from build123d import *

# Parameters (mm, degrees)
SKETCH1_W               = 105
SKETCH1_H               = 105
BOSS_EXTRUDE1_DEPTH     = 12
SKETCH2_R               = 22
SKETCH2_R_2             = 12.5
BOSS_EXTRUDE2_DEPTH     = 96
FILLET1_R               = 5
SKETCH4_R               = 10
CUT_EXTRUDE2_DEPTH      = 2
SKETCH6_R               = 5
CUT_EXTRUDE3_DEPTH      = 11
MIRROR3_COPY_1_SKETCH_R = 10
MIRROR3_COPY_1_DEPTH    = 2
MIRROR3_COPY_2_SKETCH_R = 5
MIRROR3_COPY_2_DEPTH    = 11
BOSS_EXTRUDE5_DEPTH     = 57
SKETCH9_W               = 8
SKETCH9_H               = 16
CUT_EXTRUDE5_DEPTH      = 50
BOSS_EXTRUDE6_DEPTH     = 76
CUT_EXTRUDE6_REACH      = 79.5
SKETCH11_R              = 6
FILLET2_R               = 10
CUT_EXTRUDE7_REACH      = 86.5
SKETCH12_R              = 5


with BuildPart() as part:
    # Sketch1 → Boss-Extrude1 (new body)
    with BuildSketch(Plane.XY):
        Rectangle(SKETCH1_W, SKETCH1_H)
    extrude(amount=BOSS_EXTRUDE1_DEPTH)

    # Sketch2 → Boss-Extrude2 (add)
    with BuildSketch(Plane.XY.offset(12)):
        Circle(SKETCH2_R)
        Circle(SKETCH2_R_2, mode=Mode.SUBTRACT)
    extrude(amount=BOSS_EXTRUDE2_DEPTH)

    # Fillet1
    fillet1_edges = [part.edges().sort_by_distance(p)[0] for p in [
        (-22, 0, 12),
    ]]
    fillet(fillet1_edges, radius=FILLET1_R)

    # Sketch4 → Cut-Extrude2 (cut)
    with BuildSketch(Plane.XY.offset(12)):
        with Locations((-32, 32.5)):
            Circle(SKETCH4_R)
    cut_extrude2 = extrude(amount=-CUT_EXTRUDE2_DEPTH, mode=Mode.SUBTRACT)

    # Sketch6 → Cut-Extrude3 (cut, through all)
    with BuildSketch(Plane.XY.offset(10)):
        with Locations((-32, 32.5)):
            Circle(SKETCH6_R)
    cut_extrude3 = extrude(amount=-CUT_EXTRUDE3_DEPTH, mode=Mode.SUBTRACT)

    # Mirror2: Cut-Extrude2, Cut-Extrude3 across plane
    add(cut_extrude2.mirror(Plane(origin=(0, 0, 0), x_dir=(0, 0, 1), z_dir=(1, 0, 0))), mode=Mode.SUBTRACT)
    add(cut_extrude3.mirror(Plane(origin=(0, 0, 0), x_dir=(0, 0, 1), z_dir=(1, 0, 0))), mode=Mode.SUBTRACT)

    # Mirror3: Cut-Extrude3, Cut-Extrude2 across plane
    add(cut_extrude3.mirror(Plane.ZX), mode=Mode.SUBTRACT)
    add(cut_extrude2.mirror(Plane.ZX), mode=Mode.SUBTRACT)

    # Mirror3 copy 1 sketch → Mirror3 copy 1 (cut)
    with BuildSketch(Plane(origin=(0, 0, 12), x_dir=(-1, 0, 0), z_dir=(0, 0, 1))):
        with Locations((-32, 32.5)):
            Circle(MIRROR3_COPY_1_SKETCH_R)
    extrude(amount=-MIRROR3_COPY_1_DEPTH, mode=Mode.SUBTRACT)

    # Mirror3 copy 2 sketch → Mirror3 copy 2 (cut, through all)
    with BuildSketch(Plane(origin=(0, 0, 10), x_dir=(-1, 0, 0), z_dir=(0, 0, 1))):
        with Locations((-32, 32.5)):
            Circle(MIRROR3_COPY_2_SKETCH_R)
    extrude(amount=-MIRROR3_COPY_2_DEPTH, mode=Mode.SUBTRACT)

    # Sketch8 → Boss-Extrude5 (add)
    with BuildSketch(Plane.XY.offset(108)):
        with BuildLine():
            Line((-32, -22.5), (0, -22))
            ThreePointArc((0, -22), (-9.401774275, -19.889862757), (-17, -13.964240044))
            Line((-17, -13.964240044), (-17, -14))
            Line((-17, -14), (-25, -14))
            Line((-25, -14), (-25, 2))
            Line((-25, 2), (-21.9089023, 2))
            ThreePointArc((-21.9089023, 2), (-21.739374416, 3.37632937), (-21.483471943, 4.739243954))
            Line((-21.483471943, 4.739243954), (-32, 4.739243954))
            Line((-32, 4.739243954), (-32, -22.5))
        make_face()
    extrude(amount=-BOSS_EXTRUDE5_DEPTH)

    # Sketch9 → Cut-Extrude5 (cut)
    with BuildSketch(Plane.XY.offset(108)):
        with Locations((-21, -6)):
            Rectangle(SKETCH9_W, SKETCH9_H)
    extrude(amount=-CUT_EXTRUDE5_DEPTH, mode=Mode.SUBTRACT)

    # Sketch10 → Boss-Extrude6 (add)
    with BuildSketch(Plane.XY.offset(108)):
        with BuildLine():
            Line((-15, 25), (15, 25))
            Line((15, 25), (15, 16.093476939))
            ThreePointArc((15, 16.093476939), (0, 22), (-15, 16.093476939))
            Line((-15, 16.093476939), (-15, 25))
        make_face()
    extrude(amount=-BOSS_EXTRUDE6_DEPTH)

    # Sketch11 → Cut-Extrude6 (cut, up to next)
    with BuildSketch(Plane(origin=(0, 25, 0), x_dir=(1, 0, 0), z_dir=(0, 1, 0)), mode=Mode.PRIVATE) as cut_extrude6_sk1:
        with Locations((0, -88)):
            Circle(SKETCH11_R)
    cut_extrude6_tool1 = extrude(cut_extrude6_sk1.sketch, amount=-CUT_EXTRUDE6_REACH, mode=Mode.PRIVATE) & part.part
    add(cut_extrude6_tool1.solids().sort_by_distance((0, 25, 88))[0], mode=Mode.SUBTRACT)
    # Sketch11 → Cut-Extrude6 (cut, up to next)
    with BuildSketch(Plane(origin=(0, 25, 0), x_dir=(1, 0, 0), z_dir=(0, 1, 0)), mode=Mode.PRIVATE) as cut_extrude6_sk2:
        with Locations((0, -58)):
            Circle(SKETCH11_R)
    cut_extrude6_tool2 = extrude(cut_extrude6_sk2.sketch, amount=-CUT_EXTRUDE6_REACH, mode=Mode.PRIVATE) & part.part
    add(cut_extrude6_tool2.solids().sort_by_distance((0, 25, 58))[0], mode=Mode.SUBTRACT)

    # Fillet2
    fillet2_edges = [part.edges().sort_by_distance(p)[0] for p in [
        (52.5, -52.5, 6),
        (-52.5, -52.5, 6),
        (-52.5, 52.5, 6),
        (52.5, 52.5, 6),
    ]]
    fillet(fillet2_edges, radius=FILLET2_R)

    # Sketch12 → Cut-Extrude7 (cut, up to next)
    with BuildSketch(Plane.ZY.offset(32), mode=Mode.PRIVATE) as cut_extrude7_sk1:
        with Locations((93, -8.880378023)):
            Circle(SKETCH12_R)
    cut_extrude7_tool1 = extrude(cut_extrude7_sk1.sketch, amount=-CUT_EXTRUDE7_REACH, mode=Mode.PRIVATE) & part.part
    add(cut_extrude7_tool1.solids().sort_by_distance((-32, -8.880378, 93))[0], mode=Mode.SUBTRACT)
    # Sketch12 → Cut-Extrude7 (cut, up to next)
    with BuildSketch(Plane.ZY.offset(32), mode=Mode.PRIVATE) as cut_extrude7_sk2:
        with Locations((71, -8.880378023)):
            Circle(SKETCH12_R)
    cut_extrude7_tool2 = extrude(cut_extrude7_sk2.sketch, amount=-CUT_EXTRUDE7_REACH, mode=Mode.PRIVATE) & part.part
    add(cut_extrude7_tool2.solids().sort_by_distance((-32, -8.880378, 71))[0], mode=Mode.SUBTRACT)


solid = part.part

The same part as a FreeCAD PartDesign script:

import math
import FreeCAD as App
import Part
import Sketcher
from FreeCAD import Vector
Q = App.Units.Quantity


def edges_at(feature, points):
    """Names of the edges that pass closest to the given points."""
    edges = feature.Shape.Edges
    near = lambda p: min(range(len(edges)), key=lambda i: edges[i].distToShape(Part.Vertex(*p))[0])
    return sorted({f"Edge{near(p) + 1}" for p in points})

doc = App.newDocument("Part")
body = doc.addObject("PartDesign::Body", "Body")

# Sketch on XY plane
sketch1 = doc.addObject("Sketcher::SketchObject", "Sketch")
body.addObject(sketch1)
sketch1.AttachmentSupport = (doc.XY_Plane, [""])
sketch1.MapMode = "FlatFace"
sketch1.addGeometry(Part.LineSegment(Vector(-52, 52, 0), Vector(-52, -52, 0)), False)
sketch1.addGeometry(Part.LineSegment(Vector(-52, -52, 0), Vector(52, -52, 0)), False)
sketch1.addGeometry(Part.LineSegment(Vector(52, -52, 0), Vector(52, 52, 0)), False)
sketch1.addGeometry(Part.LineSegment(Vector(52, 52, 0), Vector(-52, 52, 0)), False)
sketch1.addConstraint(Sketcher.Constraint("Coincident", 0, 2, 1, 1))
sketch1.addConstraint(Sketcher.Constraint("Coincident", 1, 2, 2, 1))
sketch1.addConstraint(Sketcher.Constraint("Coincident", 2, 2, 3, 1))
sketch1.addConstraint(Sketcher.Constraint("Coincident", 3, 2, 0, 1))
sketch1.addConstraint(Sketcher.Constraint("Vertical", 0))
sketch1.addConstraint(Sketcher.Constraint("Horizontal", 1))
sketch1.addConstraint(Sketcher.Constraint("Vertical", 2))
sketch1.addConstraint(Sketcher.Constraint("Horizontal", 3))
sketch1.addConstraint(Sketcher.Constraint("Symmetric", 0, 2, 2, 2, -1, 1))
sketch1.addConstraint(Sketcher.Constraint("Equal", 3, 0))
sketch1.addConstraint(Sketcher.Constraint("DistanceX", 1, 1, 1, 2, Q("105 mm")))
pad1 = doc.addObject("PartDesign::Pad", "Pad")
body.addObject(pad1)
pad1.Profile = sketch1
pad1.Length = 12

# Sketch on XY plane
sketch2 = doc.addObject("Sketcher::SketchObject", "Sketch001")
body.addObject(sketch2)
sketch2.AttachmentSupport = (doc.XY_Plane, [""])
sketch2.MapMode = "FlatFace"
sketch2.AttachmentOffset = App.Placement(Vector(0, 0, 12), App.Rotation())
sketch2.addGeometry(Part.Circle(Vector(0, 0, 0), Vector(0, 0, 1), 22), False)
sketch2.addGeometry(Part.Circle(Vector(0, 0, 0), Vector(0, 0, 1), 12), False)
sketch2.addConstraint(Sketcher.Constraint("Coincident", 0, 3, -1, 1))
sketch2.addConstraint(Sketcher.Constraint("Coincident", 1, 3, -1, 1))
sketch2.addConstraint(Sketcher.Constraint("Diameter", 0, Q("44 mm")))
sketch2.addConstraint(Sketcher.Constraint("Diameter", 1, Q("25 mm")))
pad2 = doc.addObject("PartDesign::Pad", "Pad001")
body.addObject(pad2)
pad2.Profile = sketch2
pad2.Length = 96
doc.recompute()

fillet = doc.addObject("PartDesign::Fillet", "Fillet")
body.addObject(fillet)
fillet.Base = (pad2, edges_at(pad2, [(-22, 0, 12)]))
fillet.Radius = 5

# Sketch on XY plane
sketch3 = doc.addObject("Sketcher::SketchObject", "Sketch002")
body.addObject(sketch3)
sketch3.AttachmentSupport = (doc.XY_Plane, [""])
sketch3.MapMode = "FlatFace"
sketch3.AttachmentOffset = App.Placement(Vector(0, 0, 12), App.Rotation())
sketch3.addGeometry(Part.Circle(Vector(-32, 32, 0), Vector(0, 0, 1), 10), False)
sketch3.addConstraint(Sketcher.Constraint("Diameter", 0, Q("20 mm")))
sketch3.addConstraint(Sketcher.Constraint("DistanceX", 0, 3, -1, 1, Q("32 mm")))
sketch3.addConstraint(Sketcher.Constraint("DistanceY", -1, 1, 0, 3, Q("32.5 mm")))
pocket1 = doc.addObject("PartDesign::Pocket", "Pocket")
body.addObject(pocket1)
pocket1.Profile = sketch3
pocket1.Length = 2

# Sketch on XY plane
sketch4 = doc.addObject("Sketcher::SketchObject", "Sketch003")
body.addObject(sketch4)
sketch4.AttachmentSupport = (doc.XY_Plane, [""])
sketch4.MapMode = "FlatFace"
sketch4.AttachmentOffset = App.Placement(Vector(0, 0, 10), App.Rotation())
sketch4.addGeometry(Part.Circle(Vector(-32, 32, 0), Vector(0, 0, 1), 5), False)
sketch4.addConstraint(Sketcher.Constraint("Diameter", 0, Q("10 mm")))
sketch4.addConstraint(Sketcher.Constraint("DistanceX", 0, 3, -1, 1, Q("32 mm")))
sketch4.addConstraint(Sketcher.Constraint("DistanceY", -1, 1, 0, 3, Q("32.5 mm")))
pocket2 = doc.addObject("PartDesign::Pocket", "Pocket001")
body.addObject(pocket2)
pocket2.Profile = sketch4
pocket2.Type = "ThroughAll"
doc.recompute()

mirrored = doc.addObject("PartDesign::Mirrored", "Mirrored")
body.addObject(mirrored)
mirrored.Originals = [pocket1, pocket2]
mirrored.MirrorPlane = (doc.YZ_Plane, [""])
body.Tip = mirrored
doc.recompute()

mirrored2 = doc.addObject("PartDesign::Mirrored", "Mirrored001")
body.addObject(mirrored2)
mirrored2.Originals = [pocket2, pocket1]
mirrored2.MirrorPlane = (doc.XZ_Plane, [""])
body.Tip = mirrored2

# Sketch on XY plane
sketch5 = doc.addObject("Sketcher::SketchObject", "Sketch004")
body.addObject(sketch5)
sketch5.AttachmentSupport = (doc.XY_Plane, [""])
sketch5.MapMode = "FlatFace"
sketch5.AttachmentOffset = App.Placement(Vector(0, 0, 12), App.Rotation())
sketch5.addGeometry(Part.Circle(Vector(32, -32, 0), Vector(0, 0, 1), 10), False)
sketch5.addConstraint(Sketcher.Constraint("Diameter", 0, Q("20 mm")))
sketch5.addConstraint(Sketcher.Constraint("DistanceX", -1, 1, 0, 3, Q("32 mm")))
sketch5.addConstraint(Sketcher.Constraint("DistanceY", 0, 3, -1, 1, Q("32.5 mm")))
pocket3 = doc.addObject("PartDesign::Pocket", "Pocket002")
body.addObject(pocket3)
pocket3.Profile = sketch5
pocket3.Length = 2

# Sketch on XY plane
sketch6 = doc.addObject("Sketcher::SketchObject", "Sketch005")
body.addObject(sketch6)
sketch6.AttachmentSupport = (doc.XY_Plane, [""])
sketch6.MapMode = "FlatFace"
sketch6.AttachmentOffset = App.Placement(Vector(0, 0, 10), App.Rotation())
sketch6.addGeometry(Part.Circle(Vector(32, -32, 0), Vector(0, 0, 1), 5), False)
sketch6.addConstraint(Sketcher.Constraint("Diameter", 0, Q("10 mm")))
sketch6.addConstraint(Sketcher.Constraint("DistanceX", -1, 1, 0, 3, Q("32 mm")))
sketch6.addConstraint(Sketcher.Constraint("DistanceY", 0, 3, -1, 1, Q("32.5 mm")))
pocket4 = doc.addObject("PartDesign::Pocket", "Pocket003")
body.addObject(pocket4)
pocket4.Profile = sketch6
pocket4.Type = "ThroughAll"

# Sketch on XY plane
sketch7 = doc.addObject("Sketcher::SketchObject", "Sketch006")
body.addObject(sketch7)
sketch7.AttachmentSupport = (doc.XY_Plane, [""])
sketch7.MapMode = "FlatFace"
sketch7.AttachmentOffset = App.Placement(Vector(0, 0, 108), App.Rotation())
sketch7.addGeometry(Part.LineSegment(Vector(-32, -22.5, 0), Vector(0, -22, 0)), False)
sketch7.addGeometry(Part.ArcOfCircle(Part.Circle(Vector(0, 0, 0), Vector(0, 0, 1), 22), math.radians(-141), math.radians(-90)), False)
sketch7.addGeometry(Part.LineSegment(Vector(-17, -13.964, 0), Vector(-17, -14, 0)), False)
sketch7.addGeometry(Part.LineSegment(Vector(-17, -14, 0), Vector(-25, -14, 0)), False)
sketch7.addGeometry(Part.LineSegment(Vector(-25, -14, 0), Vector(-25, 2, 0)), False)
sketch7.addGeometry(Part.LineSegment(Vector(-25, 2, 0), Vector(-21.909, 2, 0)), False)
sketch7.addGeometry(Part.ArcOfCircle(Part.Circle(Vector(0, 0, 0), Vector(0, 0, 1), 22), math.radians(167.56), math.radians(174.78)), False)
sketch7.addGeometry(Part.LineSegment(Vector(-21.483, 4.739, 0), Vector(-32, 4.739, 0)), False)
sketch7.addGeometry(Part.LineSegment(Vector(-32, 4.739, 0), Vector(-32, -22.5, 0)), False)
sketch7.addConstraint(Sketcher.Constraint("Coincident", 0, 2, 1, 2))
sketch7.addConstraint(Sketcher.Constraint("Coincident", 1, 1, 2, 1))
sketch7.addConstraint(Sketcher.Constraint("Coincident", 2, 2, 3, 1))
sketch7.addConstraint(Sketcher.Constraint("Coincident", 3, 2, 4, 1))
sketch7.addConstraint(Sketcher.Constraint("Coincident", 4, 2, 5, 1))
sketch7.addConstraint(Sketcher.Constraint("Coincident", 5, 2, 6, 2))
sketch7.addConstraint(Sketcher.Constraint("Coincident", 6, 1, 7, 1))
sketch7.addConstraint(Sketcher.Constraint("Coincident", 7, 2, 8, 1))
sketch7.addConstraint(Sketcher.Constraint("Coincident", 8, 2, 0, 1))
sketch7.addConstraint(Sketcher.Constraint("Vertical", 2))
sketch7.addConstraint(Sketcher.Constraint("Horizontal", 3))
sketch7.addConstraint(Sketcher.Constraint("Vertical", 4))
sketch7.addConstraint(Sketcher.Constraint("Horizontal", 5))
sketch7.addConstraint(Sketcher.Constraint("Horizontal", 7))
sketch7.addConstraint(Sketcher.Constraint("Vertical", 8))
sketch7.addConstraint(Sketcher.Constraint("Coincident", 1, 3, -1, 1))
sketch7.addConstraint(Sketcher.Constraint("Coincident", 6, 3, -1, 1))
sketch7.addConstraint(Sketcher.Constraint("Equal", 1, 6))
sketch7.addConstraint(Sketcher.Constraint("PointOnObject", 0, 2, -2))
sketch7.addConstraint(Sketcher.Constraint("Radius", 1, Q("22 mm")))
sketch7.addConstraint(Sketcher.Constraint("DistanceX", 3, 2, 3, 1, Q("8 mm")))
sketch7.addConstraint(Sketcher.Constraint("DistanceY", 4, 1, 4, 2, Q("16 mm")))
sketch7.addConstraint(Sketcher.Constraint("DistanceX", 1, 1, -1, 1, Q("17 mm")))
sketch7.addConstraint(Sketcher.Constraint("DistanceY", 2, 2, -1, 1, Q("14 mm")))
sketch7.addConstraint(Sketcher.Constraint("DistanceX", 7, 2, -1, 1, Q("32 mm")))
sketch7.addConstraint(Sketcher.Constraint("DistanceY", 8, 2, -1, 1, Q("22.5 mm")))
sketch7.addConstraint(Sketcher.Constraint("DistanceX", 7, 2, 7, 1, Q("10.516528 mm")))
pad3 = doc.addObject("PartDesign::Pad", "Pad002")
body.addObject(pad3)
pad3.Profile = sketch7
pad3.Length = 57
pad3.Reversed = True

# Sketch on XY plane
sketch8 = doc.addObject("Sketcher::SketchObject", "Sketch007")
body.addObject(sketch8)
sketch8.AttachmentSupport = (doc.XY_Plane, [""])
sketch8.MapMode = "FlatFace"
sketch8.AttachmentOffset = App.Placement(Vector(0, 0, 108), App.Rotation())
sketch8.addGeometry(Part.LineSegment(Vector(-25, 2, 0), Vector(-25, -14, 0)), False)
sketch8.addGeometry(Part.LineSegment(Vector(-25, -14, 0), Vector(-17, -14, 0)), False)
sketch8.addGeometry(Part.LineSegment(Vector(-17, -14, 0), Vector(-17, 2, 0)), False)
sketch8.addGeometry(Part.LineSegment(Vector(-17, 2, 0), Vector(-25, 2, 0)), False)
sketch8.addConstraint(Sketcher.Constraint("Coincident", 0, 2, 1, 1))
sketch8.addConstraint(Sketcher.Constraint("Coincident", 1, 2, 2, 1))
sketch8.addConstraint(Sketcher.Constraint("Coincident", 2, 2, 3, 1))
sketch8.addConstraint(Sketcher.Constraint("Coincident", 3, 2, 0, 1))
sketch8.addConstraint(Sketcher.Constraint("Vertical", 0))
sketch8.addConstraint(Sketcher.Constraint("Horizontal", 1))
sketch8.addConstraint(Sketcher.Constraint("Vertical", 2))
sketch8.addConstraint(Sketcher.Constraint("Horizontal", 3))
sketch8.addConstraint(Sketcher.Constraint("DistanceX", 1, 1, 1, 2, Q("8 mm")))
sketch8.addConstraint(Sketcher.Constraint("DistanceY", 0, 2, 0, 1, Q("16 mm")))
sketch8.addConstraint(Sketcher.Constraint("DistanceX", 0, 2, -1, 1, Q("25 mm")))
sketch8.addConstraint(Sketcher.Constraint("DistanceY", 0, 2, -1, 1, Q("14 mm")))
pocket5 = doc.addObject("PartDesign::Pocket", "Pocket004")
body.addObject(pocket5)
pocket5.Profile = sketch8
pocket5.Length = 50

# Sketch on XY plane
sketch9 = doc.addObject("Sketcher::SketchObject", "Sketch008")
body.addObject(sketch9)
sketch9.AttachmentSupport = (doc.XY_Plane, [""])
sketch9.MapMode = "FlatFace"
sketch9.AttachmentOffset = App.Placement(Vector(0, 0, 108), App.Rotation())
sketch9.addGeometry(Part.LineSegment(Vector(15, 25, 0), Vector(-15, 25, 0)), False)
sketch9.addGeometry(Part.LineSegment(Vector(-15, 25, 0), Vector(-15, 16, 0)), False)
sketch9.addGeometry(Part.ArcOfCircle(Part.Circle(Vector(0, 0, 0), Vector(0, 0, 1), 22), math.radians(47), math.radians(133)), False)
sketch9.addGeometry(Part.LineSegment(Vector(15, 16, 0), Vector(15, 25, 0)), False)
sketch9.addConstraint(Sketcher.Constraint("Coincident", 0, 2, 1, 1))
sketch9.addConstraint(Sketcher.Constraint("Coincident", 1, 2, 2, 2))
sketch9.addConstraint(Sketcher.Constraint("Coincident", 2, 1, 3, 1))
sketch9.addConstraint(Sketcher.Constraint("Coincident", 3, 2, 0, 1))
sketch9.addConstraint(Sketcher.Constraint("Horizontal", 0))
sketch9.addConstraint(Sketcher.Constraint("Vertical", 1))
sketch9.addConstraint(Sketcher.Constraint("Vertical", 3))
sketch9.addConstraint(Sketcher.Constraint("Coincident", 2, 3, -1, 1))
sketch9.addConstraint(Sketcher.Constraint("Horizontal", 1, 2, 2, 1))
sketch9.addConstraint(Sketcher.Constraint("Radius", 2, Q("22 mm")))
sketch9.addConstraint(Sketcher.Constraint("DistanceX", 0, 2, 0, 1, Q("30 mm")))
sketch9.addConstraint(Sketcher.Constraint("DistanceY", -1, 1, 0, 2, Q("25 mm")))
pad4 = doc.addObject("PartDesign::Pad", "Pad003")
body.addObject(pad4)
pad4.Profile = sketch9
pad4.Length = 76
pad4.Reversed = True

# Sketch on XZ plane
sketch10 = doc.addObject("Sketcher::SketchObject", "Sketch009")
body.addObject(sketch10)
sketch10.AttachmentSupport = (doc.XZ_Plane, [""])
sketch10.MapMode = "FlatFace"
sketch10.AttachmentOffset = App.Placement(Vector(0, 0, -25), App.Rotation())
sketch10.addGeometry(Part.Circle(Vector(0, 88, 0), Vector(0, 0, 1), 6), False)
sketch10.addConstraint(Sketcher.Constraint("PointOnObject", 0, 3, -2))
sketch10.addConstraint(Sketcher.Constraint("Diameter", 0, Q("12 mm")))
sketch10.addConstraint(Sketcher.Constraint("DistanceY", -1, 1, 0, 3, Q("88 mm")))
pocket6 = doc.addObject("PartDesign::Pocket", "Pocket005")
body.addObject(pocket6)
pocket6.Profile = sketch10
pocket6.Type = "UpToFirst"
pocket6.Reversed = True

# Sketch on XZ plane
sketch11 = doc.addObject("Sketcher::SketchObject", "Sketch010")
body.addObject(sketch11)
sketch11.AttachmentSupport = (doc.XZ_Plane, [""])
sketch11.MapMode = "FlatFace"
sketch11.AttachmentOffset = App.Placement(Vector(0, 0, -25), App.Rotation())
sketch11.addGeometry(Part.Circle(Vector(0, 58, 0), Vector(0, 0, 1), 6), False)
sketch11.addConstraint(Sketcher.Constraint("PointOnObject", 0, 3, -2))
sketch11.addConstraint(Sketcher.Constraint("Diameter", 0, Q("12 mm")))
sketch11.addConstraint(Sketcher.Constraint("DistanceY", -1, 1, 0, 3, Q("58 mm")))
pocket7 = doc.addObject("PartDesign::Pocket", "Pocket006")
body.addObject(pocket7)
pocket7.Profile = sketch11
pocket7.Type = "UpToFirst"
pocket7.Reversed = True
doc.recompute()

fillet2 = doc.addObject("PartDesign::Fillet", "Fillet001")
body.addObject(fillet2)
fillet2.Base = (pocket7, edges_at(pocket7, [
    (52.5, -52.5, 6),
    (-52.5, -52.5, 6),
    (-52.5, 52.5, 6),
    (52.5, 52.5, 6),
]))
fillet2.Radius = 10

# Sketch on YZ plane
sketch12 = doc.addObject("Sketcher::SketchObject", "Sketch011")
body.addObject(sketch12)
sketch12.AttachmentSupport = (doc.YZ_Plane, [""])
sketch12.MapMode = "FlatFace"
sketch12.AttachmentOffset = App.Placement(Vector(0, 0, -32), App.Rotation())
sketch12.addGeometry(Part.Circle(Vector(-9, 93, 0), Vector(0, 0, 1), 5), False)
sketch12.addConstraint(Sketcher.Constraint("Diameter", 0, Q("10 mm")))
sketch12.addConstraint(Sketcher.Constraint("DistanceY", -1, 1, 0, 3, Q("93 mm")))
sketch12.addConstraint(Sketcher.Constraint("DistanceX", 0, 3, -1, 1, Q("8.880378 mm")))
pocket8 = doc.addObject("PartDesign::Pocket", "Pocket007")
body.addObject(pocket8)
pocket8.Profile = sketch12
pocket8.Type = "UpToFirst"
pocket8.Reversed = True

# Sketch on YZ plane
sketch13 = doc.addObject("Sketcher::SketchObject", "Sketch012")
body.addObject(sketch13)
sketch13.AttachmentSupport = (doc.YZ_Plane, [""])
sketch13.MapMode = "FlatFace"
sketch13.AttachmentOffset = App.Placement(Vector(0, 0, -32), App.Rotation())
sketch13.addGeometry(Part.Circle(Vector(-9, 71, 0), Vector(0, 0, 1), 5), False)
sketch13.addConstraint(Sketcher.Constraint("Diameter", 0, Q("10 mm")))
sketch13.addConstraint(Sketcher.Constraint("DistanceY", -1, 1, 0, 3, Q("71 mm")))
sketch13.addConstraint(Sketcher.Constraint("DistanceX", 0, 3, -1, 1, Q("8.880378 mm")))
pocket9 = doc.addObject("PartDesign::Pocket", "Pocket008")
body.addObject(pocket9)
pocket9.Profile = sketch13
pocket9.Type = "UpToFirst"
pocket9.Reversed = True

doc.recompute()
